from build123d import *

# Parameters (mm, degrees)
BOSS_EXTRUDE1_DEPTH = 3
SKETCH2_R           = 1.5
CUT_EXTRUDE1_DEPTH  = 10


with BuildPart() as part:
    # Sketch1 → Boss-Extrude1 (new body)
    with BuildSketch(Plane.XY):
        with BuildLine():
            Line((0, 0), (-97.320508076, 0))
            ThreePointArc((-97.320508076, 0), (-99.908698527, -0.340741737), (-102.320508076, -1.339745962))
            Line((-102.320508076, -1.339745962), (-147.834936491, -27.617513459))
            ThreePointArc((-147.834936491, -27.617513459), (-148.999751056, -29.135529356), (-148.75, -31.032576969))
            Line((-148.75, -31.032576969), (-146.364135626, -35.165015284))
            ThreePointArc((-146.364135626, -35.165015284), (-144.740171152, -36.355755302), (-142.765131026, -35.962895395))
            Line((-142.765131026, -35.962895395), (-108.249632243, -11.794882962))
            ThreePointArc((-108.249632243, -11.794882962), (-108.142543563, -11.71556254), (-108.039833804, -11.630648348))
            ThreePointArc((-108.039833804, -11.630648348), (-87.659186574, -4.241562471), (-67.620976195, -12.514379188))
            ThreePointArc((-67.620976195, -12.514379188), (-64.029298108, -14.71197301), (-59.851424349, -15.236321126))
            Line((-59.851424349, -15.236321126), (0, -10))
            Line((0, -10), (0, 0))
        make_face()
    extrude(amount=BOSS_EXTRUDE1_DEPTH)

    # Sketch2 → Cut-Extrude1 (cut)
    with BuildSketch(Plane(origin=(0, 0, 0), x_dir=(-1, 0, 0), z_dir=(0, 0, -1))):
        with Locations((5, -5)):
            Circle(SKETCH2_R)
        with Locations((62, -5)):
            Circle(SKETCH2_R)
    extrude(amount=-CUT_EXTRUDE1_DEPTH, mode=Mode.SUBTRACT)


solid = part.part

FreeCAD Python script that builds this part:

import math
import FreeCAD as App
import Part
import Sketcher
Q = App.Units.Quantity

doc = App.newDocument("Part")
body = doc.addObject("PartDesign::Body", "Body")

sketch1 = doc.addObject("Sketcher::SketchObject", "Sketch")
body.addObject(sketch1)
sketch1.AttachmentSupport = (doc.XY_Plane, [""])
sketch1.MapMode = "FlatFace"
sketch1.addGeometry(Part.LineSegment(App.Vector(0, 0, 0), App.Vector(-97.320508, 0, 0)), False)
sketch1.addGeometry(Part.ArcOfCircle(Part.Circle(App.Vector(-97.320508, -10, 0), App.Vector(0, 0, 1), 10), math.radians(90), math.radians(120)), False)
sketch1.addGeometry(Part.LineSegment(App.Vector(-102.320508, -1.339746, 0), App.Vector(-147.834936, -27.617513, 0)), False)
sketch1.addGeometry(Part.ArcOfCircle(Part.Circle(App.Vector(-146.584936, -29.782577, 0), App.Vector(0, 0, 1), 2.5), math.radians(120), math.radians(210)), False)
sketch1.addGeometry(Part.LineSegment(App.Vector(-148.75, -31.032577, 0), App.Vector(-146.364136, -35.165015, 0)), False)
sketch1.addGeometry(Part.ArcOfCircle(Part.Circle(App.Vector(-144.199072, -33.915015, 0), App.Vector(0, 0, 1), 2.5), math.radians(-150), math.radians(-55)), False)
sketch1.addGeometry(Part.LineSegment(App.Vector(-142.765131, -35.962895, 0), App.Vector(-108.249632, -11.794883, 0)), False)
sketch1.addGeometry(Part.ArcOfCircle(Part.Circle(App.Vector(-109.683573, -9.747003, 0), App.Vector(0, 0, 1), 2.5), math.radians(-55.000001), math.radians(-48.890832)), False)
sketch1.addGeometry(Part.ArcOfCircle(Part.Circle(App.Vector(-88.314959, -34.234394, 0), App.Vector(0, 0, 1), 30), math.radians(46.385765), math.radians(131.109168)), False)
sketch1.addGeometry(Part.ArcOfCircle(Part.Circle(App.Vector(-60.722982, -5.274374, 0), App.Vector(0, 0, 1), 10), math.radians(-133.614235), math.radians(-85)), False)
sketch1.addGeometry(Part.LineSegment(App.Vector(-59.851424, -15.236321, 0), App.Vector(0, -10, 0)), False)
sketch1.addGeometry(Part.LineSegment(App.Vector(0, -10, 0), App.Vector(0, 0, 0)), False)
sketch1.addConstraint(Sketcher.Constraint("Tangent", 0, 2, 1, 1))
sketch1.addConstraint(Sketcher.Constraint("Tangent", 1, 2, 2, 1))
sketch1.addConstraint(Sketcher.Constraint("Tangent", 2, 2, 3, 1))
sketch1.addConstraint(Sketcher.Constraint("Tangent", 3, 2, 4, 1))
sketch1.addConstraint(Sketcher.Constraint("Tangent", 4, 2, 5, 1))
sketch1.addConstraint(Sketcher.Constraint("Tangent", 5, 2, 6, 1))
sketch1.addConstraint(Sketcher.Constraint("Tangent", 6, 2, 7, 1))
sketch1.addConstraint(Sketcher.Constraint("Tangent", 7, 2, 8, 2))
sketch1.addConstraint(Sketcher.Constraint("Tangent", 8, 1, 9, 1))
sketch1.addConstraint(Sketcher.Constraint("Tangent", 9, 2, 10, 1))
sketch1.addConstraint(Sketcher.Constraint("Coincident", 10, 2, 11, 1))
sketch1.addConstraint(Sketcher.Constraint("Coincident", 11, 2, 0, 1))
sketch1.addConstraint(Sketcher.Constraint("Horizontal", 0))
sketch1.addConstraint(Sketcher.Constraint("Vertical", 11))
sketch1.addConstraint(Sketcher.Constraint("Coincident", 11, 2, -1, 1))
sketch1.addConstraint(Sketcher.Constraint("Equal", 3, 5))
sketch1.addConstraint(Sketcher.Constraint("Equal", 5, 7))
sketch1.addConstraint(Sketcher.Constraint("Equal", 1, 9))
sketch1.addConstraint(Sketcher.Constraint("Perpendicular", 2, 4))
sketch1.addConstraint(Sketcher.Constraint("Horizontal", 1, 3, 10, 2))
sketch1.addConstraint(Sketcher.Constraint("Radius", 1, Q("10 mm")))
sketch1.addConstraint(Sketcher.Constraint("Radius", 8, Q("30 mm")))
sketch1.addConstraint(Sketcher.Constraint("Radius", 3, Q("2.5 mm")))
sketch1.addConstraint(Sketcher.Constraint("Angle", 2, Q("-150 deg")))
sketch1.addConstraint(Sketcher.Constraint("Angle", 6, Q("35 deg")))
sketch1.addConstraint(Sketcher.Constraint("Angle", 10, Q("5 deg")))
sketch1.addConstraint(Sketcher.Constraint("DistanceX", 3, 2, -1, 1, Q("148.75 mm")))
sketch1.addConstraint(Sketcher.Constraint("DistanceX", 0, 2, 0, 1, Q("97.320508 mm")))
sketch1.addConstraint(Sketcher.Constraint("DistanceX", 5, 3, 7, 3, Q("34.515499 mm")))
sketch1.addConstraint(Sketcher.Constraint("DistanceY", 5, 3, 2, 2, Q("6.297502 mm")))
sketch1.addConstraint(Sketcher.Constraint("DistanceX", 6, 2, 7, 2, Q("0.209798 mm")))
pad1 = doc.addObject("PartDesign::Pad", "Pad")
body.addObject(pad1)
pad1.Profile = sketch1
pad1.Length = 3

sketch2 = doc.addObject("Sketcher::SketchObject", "Sketch001")
body.addObject(sketch2)
sketch2.AttachmentSupport = (doc.XY_Plane, [""])
sketch2.MapMode = "FlatFace"
sketch2.addGeometry(Part.Circle(App.Vector(-5, -5, 0), App.Vector(0, 0, 1), 1.5), False)
sketch2.addGeometry(Part.Circle(App.Vector(-62, -5, 0), App.Vector(0, 0, 1), 1.5), False)
sketch2.addConstraint(Sketcher.Constraint("Equal", 0, 1))
sketch2.addConstraint(Sketcher.Constraint("Horizontal", 0, 3, 1, 3))
sketch2.addConstraint(Sketcher.Constraint("Diameter", 0, Q("3 mm")))
sketch2.addConstraint(Sketcher.Constraint("DistanceX", 0, 3, -1, 1, Q("5 mm")))
sketch2.addConstraint(Sketcher.Constraint("DistanceY", 0, 3, -1, 1, Q("5 mm")))
sketch2.addConstraint(Sketcher.Constraint("DistanceX", 1, 3, -1, 1, Q("62 mm")))
pocket1 = doc.addObject("PartDesign::Pocket", "Pocket")
body.addObject(pocket1)
pocket1.Profile = sketch2
pocket1.Length = 10
pocket1.Reversed = True

doc.recompute()
